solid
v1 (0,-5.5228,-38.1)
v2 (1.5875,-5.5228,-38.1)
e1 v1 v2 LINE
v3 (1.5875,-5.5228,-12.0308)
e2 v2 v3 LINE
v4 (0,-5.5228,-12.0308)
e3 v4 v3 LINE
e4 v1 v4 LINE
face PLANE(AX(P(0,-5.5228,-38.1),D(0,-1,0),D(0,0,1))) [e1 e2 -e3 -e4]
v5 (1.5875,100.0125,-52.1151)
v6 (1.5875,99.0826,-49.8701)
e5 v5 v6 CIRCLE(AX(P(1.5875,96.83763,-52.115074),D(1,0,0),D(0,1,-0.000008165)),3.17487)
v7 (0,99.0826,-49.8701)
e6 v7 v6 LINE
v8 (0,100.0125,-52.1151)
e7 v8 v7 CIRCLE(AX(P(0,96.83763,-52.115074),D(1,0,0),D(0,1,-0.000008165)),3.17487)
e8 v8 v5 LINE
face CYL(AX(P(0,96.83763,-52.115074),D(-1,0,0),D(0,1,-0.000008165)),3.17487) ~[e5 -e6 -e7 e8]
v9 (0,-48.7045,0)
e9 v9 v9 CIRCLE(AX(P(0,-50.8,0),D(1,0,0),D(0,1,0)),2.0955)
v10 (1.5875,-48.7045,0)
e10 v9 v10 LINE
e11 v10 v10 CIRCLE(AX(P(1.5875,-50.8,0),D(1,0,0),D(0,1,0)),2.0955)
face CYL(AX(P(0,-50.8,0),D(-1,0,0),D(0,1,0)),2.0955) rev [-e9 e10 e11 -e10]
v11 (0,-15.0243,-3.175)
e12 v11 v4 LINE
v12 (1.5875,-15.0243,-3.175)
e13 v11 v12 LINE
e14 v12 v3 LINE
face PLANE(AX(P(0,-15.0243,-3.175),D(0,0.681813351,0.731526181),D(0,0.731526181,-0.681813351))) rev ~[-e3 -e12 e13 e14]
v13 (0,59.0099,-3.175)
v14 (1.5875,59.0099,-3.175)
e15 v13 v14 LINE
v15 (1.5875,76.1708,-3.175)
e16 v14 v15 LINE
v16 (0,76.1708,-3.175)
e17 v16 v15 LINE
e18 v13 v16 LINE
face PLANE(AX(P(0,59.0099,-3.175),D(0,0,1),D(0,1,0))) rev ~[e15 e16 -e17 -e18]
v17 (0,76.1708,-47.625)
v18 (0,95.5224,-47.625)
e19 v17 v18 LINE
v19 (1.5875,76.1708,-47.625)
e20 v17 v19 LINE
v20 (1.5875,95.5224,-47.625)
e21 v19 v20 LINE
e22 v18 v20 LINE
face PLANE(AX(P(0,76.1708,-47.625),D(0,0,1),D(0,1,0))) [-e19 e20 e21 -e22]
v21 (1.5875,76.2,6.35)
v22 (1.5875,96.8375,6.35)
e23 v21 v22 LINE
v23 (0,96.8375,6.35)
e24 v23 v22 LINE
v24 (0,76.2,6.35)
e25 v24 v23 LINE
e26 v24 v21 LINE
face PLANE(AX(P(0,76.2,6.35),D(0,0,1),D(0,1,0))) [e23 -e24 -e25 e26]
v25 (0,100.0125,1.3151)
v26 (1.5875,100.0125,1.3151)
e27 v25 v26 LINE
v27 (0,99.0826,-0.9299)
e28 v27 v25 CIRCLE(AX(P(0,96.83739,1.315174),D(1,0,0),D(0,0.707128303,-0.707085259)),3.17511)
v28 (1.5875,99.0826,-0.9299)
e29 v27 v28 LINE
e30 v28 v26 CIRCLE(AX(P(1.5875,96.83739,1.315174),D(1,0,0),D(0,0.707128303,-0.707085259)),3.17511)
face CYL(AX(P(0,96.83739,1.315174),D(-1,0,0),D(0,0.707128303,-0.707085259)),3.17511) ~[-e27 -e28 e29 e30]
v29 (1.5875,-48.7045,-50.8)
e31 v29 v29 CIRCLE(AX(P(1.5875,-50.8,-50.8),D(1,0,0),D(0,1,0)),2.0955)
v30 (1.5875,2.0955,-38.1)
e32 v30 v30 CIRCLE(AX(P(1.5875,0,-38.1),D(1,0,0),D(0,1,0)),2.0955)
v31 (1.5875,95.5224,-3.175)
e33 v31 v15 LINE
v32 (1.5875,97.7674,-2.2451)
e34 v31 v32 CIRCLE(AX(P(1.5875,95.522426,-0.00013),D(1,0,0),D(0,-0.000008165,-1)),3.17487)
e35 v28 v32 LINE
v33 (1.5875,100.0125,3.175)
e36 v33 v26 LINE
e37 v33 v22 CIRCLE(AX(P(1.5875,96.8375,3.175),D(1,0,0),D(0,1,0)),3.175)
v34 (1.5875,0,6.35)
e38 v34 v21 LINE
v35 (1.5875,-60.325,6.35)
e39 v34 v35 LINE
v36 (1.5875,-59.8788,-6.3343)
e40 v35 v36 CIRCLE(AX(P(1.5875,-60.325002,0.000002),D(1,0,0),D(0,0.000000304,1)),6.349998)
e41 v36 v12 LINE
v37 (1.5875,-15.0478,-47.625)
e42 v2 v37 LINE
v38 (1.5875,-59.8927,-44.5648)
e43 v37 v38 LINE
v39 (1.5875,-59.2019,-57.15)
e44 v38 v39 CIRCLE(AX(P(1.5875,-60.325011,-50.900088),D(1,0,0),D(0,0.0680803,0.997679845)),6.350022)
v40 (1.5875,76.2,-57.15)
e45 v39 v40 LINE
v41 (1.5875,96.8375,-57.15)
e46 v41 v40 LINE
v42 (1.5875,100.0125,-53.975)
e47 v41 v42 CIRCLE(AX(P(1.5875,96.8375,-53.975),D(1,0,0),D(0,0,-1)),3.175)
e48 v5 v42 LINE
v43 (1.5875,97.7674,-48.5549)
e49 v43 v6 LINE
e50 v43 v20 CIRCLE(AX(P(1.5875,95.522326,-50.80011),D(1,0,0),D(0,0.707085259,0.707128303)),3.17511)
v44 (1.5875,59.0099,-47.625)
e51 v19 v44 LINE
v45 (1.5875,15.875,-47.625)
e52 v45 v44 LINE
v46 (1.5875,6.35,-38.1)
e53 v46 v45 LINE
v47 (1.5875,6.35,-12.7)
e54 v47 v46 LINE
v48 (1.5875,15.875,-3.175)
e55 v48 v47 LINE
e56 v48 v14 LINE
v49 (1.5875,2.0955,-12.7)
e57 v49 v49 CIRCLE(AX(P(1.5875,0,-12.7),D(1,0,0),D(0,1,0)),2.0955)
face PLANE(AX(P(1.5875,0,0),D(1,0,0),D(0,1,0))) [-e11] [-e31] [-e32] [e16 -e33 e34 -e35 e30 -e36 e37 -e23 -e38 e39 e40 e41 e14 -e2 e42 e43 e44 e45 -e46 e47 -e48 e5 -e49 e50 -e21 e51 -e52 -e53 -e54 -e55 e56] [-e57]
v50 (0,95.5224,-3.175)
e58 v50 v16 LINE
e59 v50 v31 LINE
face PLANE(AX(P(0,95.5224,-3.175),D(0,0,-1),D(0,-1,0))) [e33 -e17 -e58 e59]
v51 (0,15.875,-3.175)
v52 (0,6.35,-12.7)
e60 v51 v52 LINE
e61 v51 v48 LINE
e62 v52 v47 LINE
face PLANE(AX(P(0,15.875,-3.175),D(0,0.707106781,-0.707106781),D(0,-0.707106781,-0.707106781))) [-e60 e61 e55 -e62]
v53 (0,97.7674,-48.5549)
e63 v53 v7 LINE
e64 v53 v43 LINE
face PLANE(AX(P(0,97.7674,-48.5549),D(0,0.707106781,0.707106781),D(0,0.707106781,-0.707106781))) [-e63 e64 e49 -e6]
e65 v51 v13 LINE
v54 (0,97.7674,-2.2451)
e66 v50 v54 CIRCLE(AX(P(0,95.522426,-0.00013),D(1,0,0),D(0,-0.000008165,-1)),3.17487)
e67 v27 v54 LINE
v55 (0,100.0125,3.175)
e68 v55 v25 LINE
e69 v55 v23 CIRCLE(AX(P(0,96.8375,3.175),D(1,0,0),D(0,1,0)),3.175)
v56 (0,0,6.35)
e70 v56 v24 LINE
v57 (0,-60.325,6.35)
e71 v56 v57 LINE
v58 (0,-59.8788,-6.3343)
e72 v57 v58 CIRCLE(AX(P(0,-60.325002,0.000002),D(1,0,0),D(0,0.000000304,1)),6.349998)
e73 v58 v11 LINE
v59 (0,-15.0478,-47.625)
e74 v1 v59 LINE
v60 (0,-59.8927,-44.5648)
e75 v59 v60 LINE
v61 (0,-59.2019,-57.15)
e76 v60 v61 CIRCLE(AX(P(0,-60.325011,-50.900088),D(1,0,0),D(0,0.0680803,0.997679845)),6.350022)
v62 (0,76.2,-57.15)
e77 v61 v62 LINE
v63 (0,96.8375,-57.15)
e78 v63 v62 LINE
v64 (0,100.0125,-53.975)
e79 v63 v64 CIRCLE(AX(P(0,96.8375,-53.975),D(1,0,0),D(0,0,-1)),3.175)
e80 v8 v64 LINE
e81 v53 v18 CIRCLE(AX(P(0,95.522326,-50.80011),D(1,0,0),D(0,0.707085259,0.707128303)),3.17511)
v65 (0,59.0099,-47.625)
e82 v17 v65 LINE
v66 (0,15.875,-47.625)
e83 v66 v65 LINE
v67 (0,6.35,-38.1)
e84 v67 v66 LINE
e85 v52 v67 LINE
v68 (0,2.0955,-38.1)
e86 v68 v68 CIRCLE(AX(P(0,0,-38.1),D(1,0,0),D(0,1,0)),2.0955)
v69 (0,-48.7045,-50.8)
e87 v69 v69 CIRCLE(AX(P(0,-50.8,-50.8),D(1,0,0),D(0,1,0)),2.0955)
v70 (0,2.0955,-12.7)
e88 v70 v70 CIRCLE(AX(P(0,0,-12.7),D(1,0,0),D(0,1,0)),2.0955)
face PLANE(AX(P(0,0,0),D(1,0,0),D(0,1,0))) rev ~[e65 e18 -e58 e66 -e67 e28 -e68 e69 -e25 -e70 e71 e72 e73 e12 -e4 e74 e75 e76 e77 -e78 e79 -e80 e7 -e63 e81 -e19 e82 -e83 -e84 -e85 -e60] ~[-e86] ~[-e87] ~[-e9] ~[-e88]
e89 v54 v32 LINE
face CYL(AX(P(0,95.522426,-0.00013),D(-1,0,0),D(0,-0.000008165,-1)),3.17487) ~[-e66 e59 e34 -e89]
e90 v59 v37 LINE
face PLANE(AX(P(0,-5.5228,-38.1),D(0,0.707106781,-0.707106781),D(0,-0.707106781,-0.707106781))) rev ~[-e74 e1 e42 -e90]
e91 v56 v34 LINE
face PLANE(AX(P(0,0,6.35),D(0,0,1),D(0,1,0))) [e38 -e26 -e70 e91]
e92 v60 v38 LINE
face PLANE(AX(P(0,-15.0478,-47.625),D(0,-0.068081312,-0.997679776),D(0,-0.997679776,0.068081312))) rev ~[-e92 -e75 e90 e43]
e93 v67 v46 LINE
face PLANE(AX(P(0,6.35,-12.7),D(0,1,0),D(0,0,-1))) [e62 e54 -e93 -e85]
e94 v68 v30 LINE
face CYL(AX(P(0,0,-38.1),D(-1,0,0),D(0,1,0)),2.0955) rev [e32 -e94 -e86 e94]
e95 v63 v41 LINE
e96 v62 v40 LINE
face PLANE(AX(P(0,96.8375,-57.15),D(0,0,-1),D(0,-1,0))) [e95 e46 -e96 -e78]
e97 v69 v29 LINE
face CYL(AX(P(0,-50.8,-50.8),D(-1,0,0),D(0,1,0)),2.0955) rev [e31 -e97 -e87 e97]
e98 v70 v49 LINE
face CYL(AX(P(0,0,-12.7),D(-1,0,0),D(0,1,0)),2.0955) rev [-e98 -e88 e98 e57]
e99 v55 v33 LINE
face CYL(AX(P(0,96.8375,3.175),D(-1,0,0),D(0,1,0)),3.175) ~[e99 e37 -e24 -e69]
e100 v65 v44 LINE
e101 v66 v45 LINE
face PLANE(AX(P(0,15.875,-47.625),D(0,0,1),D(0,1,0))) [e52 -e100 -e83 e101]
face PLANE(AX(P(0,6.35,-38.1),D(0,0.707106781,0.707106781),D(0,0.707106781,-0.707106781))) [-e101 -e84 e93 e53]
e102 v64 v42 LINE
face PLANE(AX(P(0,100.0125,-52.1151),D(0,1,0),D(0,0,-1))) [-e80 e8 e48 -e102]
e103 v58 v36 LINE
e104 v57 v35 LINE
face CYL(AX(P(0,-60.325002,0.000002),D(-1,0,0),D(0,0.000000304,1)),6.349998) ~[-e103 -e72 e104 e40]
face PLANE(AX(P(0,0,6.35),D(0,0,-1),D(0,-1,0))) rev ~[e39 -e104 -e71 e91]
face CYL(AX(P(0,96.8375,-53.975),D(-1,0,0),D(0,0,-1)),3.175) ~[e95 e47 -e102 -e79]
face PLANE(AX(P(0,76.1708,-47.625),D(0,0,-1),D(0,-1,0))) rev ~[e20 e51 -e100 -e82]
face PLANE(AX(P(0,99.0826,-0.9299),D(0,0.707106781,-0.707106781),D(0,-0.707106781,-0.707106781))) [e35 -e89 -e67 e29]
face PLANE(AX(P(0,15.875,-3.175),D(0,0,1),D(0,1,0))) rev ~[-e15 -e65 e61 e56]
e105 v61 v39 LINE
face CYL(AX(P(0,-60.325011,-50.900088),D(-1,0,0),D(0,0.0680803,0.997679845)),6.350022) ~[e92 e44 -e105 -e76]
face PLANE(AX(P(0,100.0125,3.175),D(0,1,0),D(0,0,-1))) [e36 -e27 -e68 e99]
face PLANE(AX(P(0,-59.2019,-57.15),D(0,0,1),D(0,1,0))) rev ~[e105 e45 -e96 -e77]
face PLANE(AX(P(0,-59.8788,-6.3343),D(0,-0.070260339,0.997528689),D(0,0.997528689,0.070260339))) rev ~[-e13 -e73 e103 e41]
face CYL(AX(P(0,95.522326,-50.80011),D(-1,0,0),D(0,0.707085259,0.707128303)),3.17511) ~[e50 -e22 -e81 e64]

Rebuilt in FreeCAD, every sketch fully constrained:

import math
import FreeCAD as App
import Part
import Sketcher

V = App.Vector
Q = App.Units.Quantity

doc = App.newDocument("Part")
params = doc.addObject("Spreadsheet::Sheet", "Params")
for row, (alias, value) in enumerate([
    ("sketch1_height", "1 in"),
    ("sketch1_radius", "0.25 in"),
    ("sketch1_diameter", "0.165 in"),
    ("sketch1_radius2", "0.125 in"),
    ("sketch1_width", "6.1875 in"),
    ("pad1_length", "0.0625 in"),
], start=1):
    params.set(f"A{row}", alias)
    params.set(f"B{row}", "=" + value)
    params.setAlias(f"B{row}", alias)

body = doc.addObject("PartDesign::Body", "Body")

sketch1 = body.newObject("Sketcher::SketchObject", "Sketch")
sketch1.AttachmentSupport = (doc.getObject("YZ_Plane"), [""])
sketch1.MapMode = "FlatFace"
sketch1.addGeometry([
    Part.LineSegment(V(96.8, 6.3, 0), V(-60.3, 6.3, 0)),
    Part.ArcOfCircle(Part.Circle(V(-60.3, 0, 0), V(0, 0, 1), 6.3), math.radians(90), math.radians(274)),
    Part.LineSegment(V(-59.9, -6.3, 0), V(-15, -3.2, 0)),
    Part.LineSegment(V(-15, -3.2, 0), V(-5.5, -12, 0)),
    Part.LineSegment(V(-5.5, -12, 0), V(-5.5, -38.1, 0)),
    Part.LineSegment(V(-5.5, -38.1, 0), V(-15, -47.6, 0)),
    Part.LineSegment(V(-15, -47.6, 0), V(-59.9, -44.6, 0)),
    Part.ArcOfCircle(Part.Circle(V(-60.3, -50.9, 0), V(0, 0, 1), 6.4), math.radians(86), math.radians(280)),
    Part.LineSegment(V(-59.2, -57.1, 0), V(96.8, -57.1, 0)),
    Part.ArcOfCircle(Part.Circle(V(96.8, -54, 0), V(0, 0, 1), 3.2), math.radians(-90), math.radians(0)),
    Part.LineSegment(V(100, -54, 0), V(100, -52.1, 0)),
    Part.ArcOfCircle(Part.Circle(V(96.8, -52.1, 0), V(0, 0, 1), 3.2), math.radians(0), math.radians(45)),
    Part.LineSegment(V(99.1, -49.9, 0), V(97.8, -48.6, 0)),
    Part.ArcOfCircle(Part.Circle(V(95.5, -50.8, 0), V(0, 0, 1), 3.2), math.radians(45), math.radians(90)),
    Part.LineSegment(V(95.5, -47.6, 0), V(15.9, -47.6, 0)),
    Part.LineSegment(V(15.9, -47.6, 0), V(6.3, -38.1, 0)),
    Part.LineSegment(V(6.3, -38.1, 0), V(6.3, -12.7, 0)),
    Part.LineSegment(V(6.3, -12.7, 0), V(15.9, -3.2, 0)),
    Part.LineSegment(V(15.9, -3.2, 0), V(95.5, -3.2, 0)),
    Part.ArcOfCircle(Part.Circle(V(95.5, 0, 0), V(0, 0, 1), 3.2), math.radians(-90), math.radians(-45)),
    Part.LineSegment(V(97.8, -2.2, 0), V(99.1, -0.9, 0)),
    Part.ArcOfCircle(Part.Circle(V(96.8, 1.3, 0), V(0, 0, 1), 3.2), math.radians(-45), math.radians(0)),
    Part.LineSegment(V(100, 1.3, 0), V(100, 3.2, 0)),
    Part.ArcOfCircle(Part.Circle(V(96.8, 3.2, 0), V(0, 0, 1), 3.2), math.radians(0), math.radians(90)),
    Part.Circle(V(-50.8, -50.8, 0), V(0, 0, 1), 2.1),
    Part.Circle(V(0, -38.1, 0), V(0, 0, 1), 2.1),
    Part.Circle(V(0, -12.7, 0), V(0, 0, 1), 2.1),
    Part.Circle(V(-50.8, 0, 0), V(0, 0, 1), 2.1),
], False)
sketch1.addConstraint([
    Sketcher.Constraint("Tangent", 0, 2, 1, 1),
    Sketcher.Constraint("Tangent", 1, 2, 2, 1),
    Sketcher.Constraint("Coincident", 2, 2, 3, 1),
    Sketcher.Constraint("Coincident", 3, 2, 4, 1),
    Sketcher.Constraint("Coincident", 4, 2, 5, 1),
    Sketcher.Constraint("Coincident", 5, 2, 6, 1),
    Sketcher.Constraint("Tangent", 6, 2, 7, 1),
    Sketcher.Constraint("Coincident", 7, 2, 8, 1),
    Sketcher.Constraint("Tangent", 8, 2, 9, 1),
    Sketcher.Constraint("Tangent", 9, 2, 10, 1),
    Sketcher.Constraint("Tangent", 10, 2, 11, 1),
    Sketcher.Constraint("Tangent", 11, 2, 12, 1),
    Sketcher.Constraint("Tangent", 12, 2, 13, 1),
    Sketcher.Constraint("Tangent", 13, 2, 14, 1),
    Sketcher.Constraint("Coincident", 14, 2, 15, 1),
    Sketcher.Constraint("Coincident", 15, 2, 16, 1),
    Sketcher.Constraint("Coincident", 16, 2, 17, 1),
    Sketcher.Constraint("Coincident", 17, 2, 18, 1),
    Sketcher.Constraint("Tangent", 18, 2, 19, 1),
    Sketcher.Constraint("Tangent", 19, 2, 20, 1),
    Sketcher.Constraint("Tangent", 20, 2, 21, 1),
    Sketcher.Constraint("Tangent", 21, 2, 22, 1),
    Sketcher.Constraint("Tangent", 22, 2, 23, 1),
    Sketcher.Constraint("Tangent", 23, 2, 0, 1),
    Sketcher.Constraint("Horizontal", 0),
    Sketcher.Constraint("Vertical", 4),
    Sketcher.Constraint("Horizontal", 8),
    Sketcher.Constraint("Vertical", 10),
    Sketcher.Constraint("Horizontal", 14),
    Sketcher.Constraint("Vertical", 16),
    Sketcher.Constraint("Horizontal", 18),
    Sketcher.Constraint("Vertical", 22),
    Sketcher.Constraint("Equal", 1, 7),
    Sketcher.Constraint("Equal", 9, 11),
    Sketcher.Constraint("Equal", 11, 13),
    Sketcher.Constraint("Equal", 13, 19),
    Sketcher.Constraint("Equal", 19, 21),
    Sketcher.Constraint("Equal", 21, 23),
    Sketcher.Constraint("Equal", 24, 25),
    Sketcher.Constraint("Equal", 25, 26),
    Sketcher.Constraint("Equal", 26, 27),
    Sketcher.Constraint("PointOnObject", 1, 3, -1),
    Sketcher.Constraint("PointOnObject", 19, 3, -1),
    Sketcher.Constraint("PointOnObject", 25, 3, -2),
    Sketcher.Constraint("PointOnObject", 26, 3, -2),
    Sketcher.Constraint("PointOnObject", 27, 3, -1),
    Sketcher.Constraint("Perpendicular", 5, 12),
    Sketcher.Constraint("Parallel", 12, 15),
    Sketcher.Constraint("Perpendicular", 15, 17),
    Sketcher.Constraint("Parallel", 17, 20),
    Sketcher.Constraint("Horizontal", 13, 3, 24, 3),
    Sketcher.Constraint("Horizontal", 25, 3, 4, 2),
    Sketcher.Constraint("Horizontal", 5, 2, 13, 2),
    Sketcher.Constraint("Horizontal", 4, 2, 15, 2),
    Sketcher.Constraint("Horizontal", 26, 3, 16, 2),
    Sketcher.Constraint("Horizontal", 2, 2, 17, 2),
    Sketcher.Constraint("Vertical", 1, 3, 7, 3),
    Sketcher.Constraint("Vertical", 13, 3, 19, 3),
    Sketcher.Constraint("Vertical", 11, 3, 21, 3),
    Sketcher.Constraint("Vertical", 24, 3, 27, 3),
    Sketcher.Constraint("Vertical", 14, 2, 17, 2),
    Sketcher.Constraint("Vertical", 12, 2, 19, 2),
    Sketcher.Constraint("Equal", 10, 22),
    Sketcher.Constraint("DistanceY", 16, 1, 16, 2, Q("1 in")),
    Sketcher.Constraint("Radius", 1, Q("0.25 in")),
    Sketcher.Constraint("Diameter", 24, Q("0.165 in")),
    Sketcher.Constraint("Radius", 9, Q("0.125 in")),
    Sketcher.Constraint("DistanceY", 26, 3, -1, 1, Q("0.5 in")),
    Sketcher.Constraint("DistanceX", 24, 3, -1, 1, Q("2 in")),
    Sketcher.Constraint("DistanceX", 7, 3, 24, 3, Q("0.375 in")),
    Sketcher.Constraint("DistanceX", 0, 2, 0, 1, Q("6.1875 in")),
    Sketcher.Constraint("DistanceX", -1, 1, 15, 2, Q("0.25 in")),
    Sketcher.Constraint("Angle", 2, Q("4.029 deg")),
    Sketcher.Constraint("DistanceX", 1, 2, 3, 2, Q("2.14 in")),
    Sketcher.Constraint("DistanceX", 8, 1, 8, 2, 156.0394),
    Sketcher.Constraint("DistanceX", 14, 2, 14, 1, 79.6474),
    Sketcher.Constraint("DistanceY", 4, 2, 4, 1, 26.0692),
])
sketch1.setExpression("Constraints[63]", "Params.sketch1_height")
sketch1.setExpression("Constraints[64]", "Params.sketch1_radius")
sketch1.setExpression("Constraints[65]", "Params.sketch1_diameter")
sketch1.setExpression("Constraints[66]", "Params.sketch1_radius2")
sketch1.setExpression("Constraints[70]", "Params.sketch1_width")
pad1 = body.newObject("PartDesign::Pad", "Pad")
pad1.Profile = sketch1
pad1.setExpression("Length", "Params.pad1_length")

doc.recompute()
